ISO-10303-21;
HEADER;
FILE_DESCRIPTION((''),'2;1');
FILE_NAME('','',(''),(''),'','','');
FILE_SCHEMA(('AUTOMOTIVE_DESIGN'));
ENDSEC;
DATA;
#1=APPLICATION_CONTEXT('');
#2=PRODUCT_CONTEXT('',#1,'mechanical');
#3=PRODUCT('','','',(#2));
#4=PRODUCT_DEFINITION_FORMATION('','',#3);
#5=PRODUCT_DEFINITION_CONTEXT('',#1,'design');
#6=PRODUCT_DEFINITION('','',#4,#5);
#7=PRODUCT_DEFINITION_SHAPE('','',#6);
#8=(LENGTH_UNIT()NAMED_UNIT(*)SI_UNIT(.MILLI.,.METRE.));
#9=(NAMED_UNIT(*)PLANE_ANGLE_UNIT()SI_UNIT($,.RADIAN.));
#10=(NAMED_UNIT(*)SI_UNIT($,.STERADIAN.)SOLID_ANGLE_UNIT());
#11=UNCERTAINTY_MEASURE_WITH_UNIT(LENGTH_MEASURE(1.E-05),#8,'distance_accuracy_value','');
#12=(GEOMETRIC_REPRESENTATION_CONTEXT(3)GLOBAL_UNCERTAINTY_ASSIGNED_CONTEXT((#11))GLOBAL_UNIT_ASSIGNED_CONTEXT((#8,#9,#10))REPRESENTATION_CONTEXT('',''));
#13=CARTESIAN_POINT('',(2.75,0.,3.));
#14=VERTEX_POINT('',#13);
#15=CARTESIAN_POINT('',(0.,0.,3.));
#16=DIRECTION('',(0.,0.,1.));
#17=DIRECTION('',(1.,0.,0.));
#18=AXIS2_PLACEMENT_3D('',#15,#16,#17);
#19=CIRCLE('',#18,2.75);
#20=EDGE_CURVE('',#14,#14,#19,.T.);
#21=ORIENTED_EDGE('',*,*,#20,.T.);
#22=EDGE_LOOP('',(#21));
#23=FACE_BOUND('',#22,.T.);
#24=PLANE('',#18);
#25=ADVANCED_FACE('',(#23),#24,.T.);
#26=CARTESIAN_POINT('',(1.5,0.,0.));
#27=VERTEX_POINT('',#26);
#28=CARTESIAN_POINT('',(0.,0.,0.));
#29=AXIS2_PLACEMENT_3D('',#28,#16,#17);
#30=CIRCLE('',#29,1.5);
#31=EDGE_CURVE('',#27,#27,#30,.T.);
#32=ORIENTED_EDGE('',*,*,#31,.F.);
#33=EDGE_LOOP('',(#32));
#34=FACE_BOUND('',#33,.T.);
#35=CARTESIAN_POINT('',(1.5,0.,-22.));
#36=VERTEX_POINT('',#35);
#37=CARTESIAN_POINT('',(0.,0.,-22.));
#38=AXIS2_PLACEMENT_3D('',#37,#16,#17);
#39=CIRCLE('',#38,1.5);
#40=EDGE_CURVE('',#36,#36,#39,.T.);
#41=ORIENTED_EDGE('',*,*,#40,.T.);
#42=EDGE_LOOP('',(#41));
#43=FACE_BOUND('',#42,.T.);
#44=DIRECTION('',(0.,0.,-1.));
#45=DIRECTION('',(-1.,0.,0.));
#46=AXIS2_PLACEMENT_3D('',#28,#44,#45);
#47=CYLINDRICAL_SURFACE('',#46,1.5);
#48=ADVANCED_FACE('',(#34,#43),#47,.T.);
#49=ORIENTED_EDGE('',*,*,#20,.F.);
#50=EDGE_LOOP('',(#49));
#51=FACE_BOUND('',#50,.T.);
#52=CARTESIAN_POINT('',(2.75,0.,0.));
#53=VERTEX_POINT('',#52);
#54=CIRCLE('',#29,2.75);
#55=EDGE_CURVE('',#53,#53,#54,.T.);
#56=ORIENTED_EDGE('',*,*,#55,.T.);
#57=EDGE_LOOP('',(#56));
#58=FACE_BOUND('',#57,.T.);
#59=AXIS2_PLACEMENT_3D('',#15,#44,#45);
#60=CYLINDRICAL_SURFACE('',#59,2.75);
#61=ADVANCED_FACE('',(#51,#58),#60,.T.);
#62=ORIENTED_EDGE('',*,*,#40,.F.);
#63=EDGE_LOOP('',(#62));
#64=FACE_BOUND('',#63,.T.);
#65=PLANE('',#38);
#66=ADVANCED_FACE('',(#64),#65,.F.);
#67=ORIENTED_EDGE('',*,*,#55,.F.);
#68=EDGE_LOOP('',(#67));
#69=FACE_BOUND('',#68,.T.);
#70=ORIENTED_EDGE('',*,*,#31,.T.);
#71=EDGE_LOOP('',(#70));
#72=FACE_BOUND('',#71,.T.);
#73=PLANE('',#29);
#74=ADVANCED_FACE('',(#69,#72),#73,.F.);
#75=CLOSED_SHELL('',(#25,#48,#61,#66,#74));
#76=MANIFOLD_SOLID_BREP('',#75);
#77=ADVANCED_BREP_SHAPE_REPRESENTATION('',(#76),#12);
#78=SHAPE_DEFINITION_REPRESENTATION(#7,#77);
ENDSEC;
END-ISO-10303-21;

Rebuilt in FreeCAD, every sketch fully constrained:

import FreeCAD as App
import Part
import Sketcher

V = App.Vector

doc = App.newDocument("Part")
body = doc.addObject("PartDesign::Body", "Body")

# Sketch on XY plane
sketch1 = doc.addObject("Sketcher::SketchObject", "Sketch")
body.addObject(sketch1)
sketch1.AttachmentSupport = (doc.XY_Plane, [""])
sketch1.MapMode = "FlatFace"
sketch1.AttachmentOffset = App.Placement(V(0, 0, -22), App.Rotation())
sketch1.addGeometry(Part.Circle(V(0, 0, 0), V(0, 0, 1), 1.5), False)
sketch1.addConstraint(Sketcher.Constraint("Coincident", 0, 3, -1, 1))
sketch1.addConstraint(Sketcher.Constraint("Diameter", 0, 3.0))
pad1 = doc.addObject("PartDesign::Pad", "Pad")
body.addObject(pad1)
pad1.Profile = sketch1
pad1.Length = 22

# Sketch on XY plane
sketch2 = doc.addObject("Sketcher::SketchObject", "Sketch001")
body.addObject(sketch2)
sketch2.AttachmentSupport = (doc.XY_Plane, [""])
sketch2.MapMode = "FlatFace"
sketch2.addGeometry(Part.Circle(V(0, 0, 0), V(0, 0, 1), 2.8), False)
sketch2.addConstraint(Sketcher.Constraint("Coincident", 0, 3, -1, 1))
sketch2.addConstraint(Sketcher.Constraint("Diameter", 0, 5.5))
pad2 = doc.addObject("PartDesign::Pad", "Pad001")
body.addObject(pad2)
pad2.Profile = sketch2
pad2.Length = 3

doc.recompute()
